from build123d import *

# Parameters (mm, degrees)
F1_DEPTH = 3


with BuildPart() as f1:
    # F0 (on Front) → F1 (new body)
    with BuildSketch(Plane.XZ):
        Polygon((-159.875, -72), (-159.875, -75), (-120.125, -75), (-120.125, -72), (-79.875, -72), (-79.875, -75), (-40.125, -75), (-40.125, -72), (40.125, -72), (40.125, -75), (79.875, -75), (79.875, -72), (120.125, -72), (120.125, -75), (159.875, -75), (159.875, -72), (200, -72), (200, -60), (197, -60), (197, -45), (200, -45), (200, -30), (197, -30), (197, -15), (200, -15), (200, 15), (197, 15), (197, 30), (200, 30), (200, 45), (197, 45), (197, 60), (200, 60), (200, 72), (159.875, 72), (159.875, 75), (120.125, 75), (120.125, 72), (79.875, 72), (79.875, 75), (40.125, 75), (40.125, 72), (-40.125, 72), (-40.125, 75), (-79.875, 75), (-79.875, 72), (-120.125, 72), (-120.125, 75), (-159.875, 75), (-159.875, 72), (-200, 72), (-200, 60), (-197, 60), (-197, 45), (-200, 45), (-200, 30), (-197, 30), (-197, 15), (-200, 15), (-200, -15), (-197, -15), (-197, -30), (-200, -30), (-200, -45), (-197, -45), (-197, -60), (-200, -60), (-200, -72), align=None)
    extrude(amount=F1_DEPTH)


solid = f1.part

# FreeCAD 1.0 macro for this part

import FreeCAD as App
import Part
import Sketcher
from FreeCAD import Vector

doc = App.newDocument("Part")
body = doc.addObject("PartDesign::Body", "Body")

# Sketch on XZ plane
sketch1 = doc.addObject("Sketcher::SketchObject", "Sketch")
body.addObject(sketch1)
sketch1.AttachmentSupport = (doc.XZ_Plane, [""])
sketch1.MapMode = "FlatFace"
sketch1.addGeometry([
    Part.LineSegment(Vector(-159.9, -72, 0), Vector(-159.9, -75, 0)),  # 0
    Part.LineSegment(Vector(-159.9, -75, 0), Vector(-120.1, -75, 0)),  # 1
    Part.LineSegment(Vector(-120.1, -75, 0), Vector(-120.1, -72, 0)),  # 2
    Part.LineSegment(Vector(-120.1, -72, 0), Vector(-79.9, -72, 0)),  # 3
    Part.LineSegment(Vector(-79.9, -72, 0), Vector(-79.9, -75, 0)),  # 4
    Part.LineSegment(Vector(-79.9, -75, 0), Vector(-40.1, -75, 0)),  # 5
    Part.LineSegment(Vector(-40.1, -75, 0), Vector(-40.1, -72, 0)),  # 6
    Part.LineSegment(Vector(-40.1, -72, 0), Vector(40.1, -72, 0)),  # 7
    Part.LineSegment(Vector(40.1, -72, 0), Vector(40.1, -75, 0)),  # 8
    Part.LineSegment(Vector(40.1, -75, 0), Vector(79.9, -75, 0)),  # 9
    Part.LineSegment(Vector(79.9, -75, 0), Vector(79.9, -72, 0)),  # 10
    Part.LineSegment(Vector(79.9, -72, 0), Vector(120.1, -72, 0)),  # 11
    Part.LineSegment(Vector(120.1, -72, 0), Vector(120.1, -75, 0)),  # 12
    Part.LineSegment(Vector(120.1, -75, 0), Vector(159.9, -75, 0)),  # 13
    Part.LineSegment(Vector(159.9, -75, 0), Vector(159.9, -72, 0)),  # 14
    Part.LineSegment(Vector(159.9, -72, 0), Vector(200, -72, 0)),  # 15
    Part.LineSegment(Vector(200, -72, 0), Vector(200, -60, 0)),  # 16
    Part.LineSegment(Vector(200, -60, 0), Vector(197, -60, 0)),  # 17
    Part.LineSegment(Vector(197, -60, 0), Vector(197, -45, 0)),  # 18
    Part.LineSegment(Vector(197, -45, 0), Vector(200, -45, 0)),  # 19
    Part.LineSegment(Vector(200, -45, 0), Vector(200, -30, 0)),  # 20
    Part.LineSegment(Vector(200, -30, 0), Vector(197, -30, 0)),  # 21
    Part.LineSegment(Vector(197, -30, 0), Vector(197, -15, 0)),  # 22
    Part.LineSegment(Vector(197, -15, 0), Vector(200, -15, 0)),  # 23
    Part.LineSegment(Vector(200, -15, 0), Vector(200, 15, 0)),  # 24
    Part.LineSegment(Vector(200, 15, 0), Vector(197, 15, 0)),  # 25
    Part.LineSegment(Vector(197, 15, 0), Vector(197, 30, 0)),  # 26
    Part.LineSegment(Vector(197, 30, 0), Vector(200, 30, 0)),  # 27
    Part.LineSegment(Vector(200, 30, 0), Vector(200, 45, 0)),  # 28
    Part.LineSegment(Vector(200, 45, 0), Vector(197, 45, 0)),  # 29
    Part.LineSegment(Vector(197, 45, 0), Vector(197, 60, 0)),  # 30
    Part.LineSegment(Vector(197, 60, 0), Vector(200, 60, 0)),  # 31
    Part.LineSegment(Vector(200, 60, 0), Vector(200, 72, 0)),  # 32
    Part.LineSegment(Vector(200, 72, 0), Vector(159.9, 72, 0)),  # 33
    Part.LineSegment(Vector(159.9, 72, 0), Vector(159.9, 75, 0)),  # 34
    Part.LineSegment(Vector(159.9, 75, 0), Vector(120.1, 75, 0)),  # 35
    Part.LineSegment(Vector(120.1, 75, 0), Vector(120.1, 72, 0)),  # 36
    Part.LineSegment(Vector(120.1, 72, 0), Vector(79.9, 72, 0)),  # 37
    Part.LineSegment(Vector(79.9, 72, 0), Vector(79.9, 75, 0)),  # 38
    Part.LineSegment(Vector(79.9, 75, 0), Vector(40.1, 75, 0)),  # 39
    Part.LineSegment(Vector(40.1, 75, 0), Vector(40.1, 72, 0)),  # 40
    Part.LineSegment(Vector(40.1, 72, 0), Vector(-40.1, 72, 0)),  # 41
    Part.LineSegment(Vector(-40.1, 72, 0), Vector(-40.1, 75, 0)),  # 42
    Part.LineSegment(Vector(-40.1, 75, 0), Vector(-79.9, 75, 0)),  # 43
    Part.LineSegment(Vector(-79.9, 75, 0), Vector(-79.9, 72, 0)),  # 44
    Part.LineSegment(Vector(-79.9, 72, 0), Vector(-120.1, 72, 0)),  # 45
    Part.LineSegment(Vector(-120.1, 72, 0), Vector(-120.1, 75, 0)),  # 46
    Part.LineSegment(Vector(-120.1, 75, 0), Vector(-159.9, 75, 0)),  # 47
    Part.LineSegment(Vector(-159.9, 75, 0), Vector(-159.9, 72, 0)),  # 48
    Part.LineSegment(Vector(-159.9, 72, 0), Vector(-200, 72, 0)),  # 49
    Part.LineSegment(Vector(-200, 72, 0), Vector(-200, 60, 0)),  # 50
    Part.LineSegment(Vector(-200, 60, 0), Vector(-197, 60, 0)),  # 51
    Part.LineSegment(Vector(-197, 60, 0), Vector(-197, 45, 0)),  # 52
    Part.LineSegment(Vector(-197, 45, 0), Vector(-200, 45, 0)),  # 53
    Part.LineSegment(Vector(-200, 45, 0), Vector(-200, 30, 0)),  # 54
    Part.LineSegment(Vector(-200, 30, 0), Vector(-197, 30, 0)),  # 55
    Part.LineSegment(Vector(-197, 30, 0), Vector(-197, 15, 0)),  # 56
    Part.LineSegment(Vector(-197, 15, 0), Vector(-200, 15, 0)),  # 57
    Part.LineSegment(Vector(-200, 15, 0), Vector(-200, -15, 0)),  # 58
    Part.LineSegment(Vector(-200, -15, 0), Vector(-197, -15, 0)),  # 59
    Part.LineSegment(Vector(-197, -15, 0), Vector(-197, -30, 0)),  # 60
    Part.LineSegment(Vector(-197, -30, 0), Vector(-200, -30, 0)),  # 61
    Part.LineSegment(Vector(-200, -30, 0), Vector(-200, -45, 0)),  # 62
    Part.LineSegment(Vector(-200, -45, 0), Vector(-197, -45, 0)),  # 63
    Part.LineSegment(Vector(-197, -45, 0), Vector(-197, -60, 0)),  # 64
    Part.LineSegment(Vector(-197, -60, 0), Vector(-200, -60, 0)),  # 65
    Part.LineSegment(Vector(-200, -60, 0), Vector(-200, -72, 0)),  # 66
    Part.LineSegment(Vector(-200, -72, 0), Vector(-159.9, -72, 0)),  # 67
], False)
sketch1.addConstraint([
    Sketcher.Constraint("Coincident", 0, 2, 1, 1),
    Sketcher.Constraint("Coincident", 1, 2, 2, 1),
    Sketcher.Constraint("Coincident", 2, 2, 3, 1),
    Sketcher.Constraint("Coincident", 3, 2, 4, 1),
    Sketcher.Constraint("Coincident", 4, 2, 5, 1),
    Sketcher.Constraint("Coincident", 5, 2, 6, 1),
    Sketcher.Constraint("Coincident", 6, 2, 7, 1),
    Sketcher.Constraint("Coincident", 7, 2, 8, 1),
    Sketcher.Constraint("Coincident", 8, 2, 9, 1),
    Sketcher.Constraint("Coincident", 9, 2, 10, 1),
    Sketcher.Constraint("Coincident", 10, 2, 11, 1),
    Sketcher.Constraint("Coincident", 11, 2, 12, 1),
    Sketcher.Constraint("Coincident", 12, 2, 13, 1),
    Sketcher.Constraint("Coincident", 13, 2, 14, 1),
    Sketcher.Constraint("Coincident", 14, 2, 15, 1),
    Sketcher.Constraint("Coincident", 15, 2, 16, 1),
    Sketcher.Constraint("Coincident", 16, 2, 17, 1),
    Sketcher.Constraint("Coincident", 17, 2, 18, 1),
    Sketcher.Constraint("Coincident", 18, 2, 19, 1),
    Sketcher.Constraint("Coincident", 19, 2, 20, 1),
    Sketcher.Constraint("Coincident", 20, 2, 21, 1),
    Sketcher.Constraint("Coincident", 21, 2, 22, 1),
    Sketcher.Constraint("Coincident", 22, 2, 23, 1),
    Sketcher.Constraint("Coincident", 23, 2, 24, 1),
    Sketcher.Constraint("Coincident", 24, 2, 25, 1),
    Sketcher.Constraint("Coincident", 25, 2, 26, 1),
    Sketcher.Constraint("Coincident", 26, 2, 27, 1),
    Sketcher.Constraint("Coincident", 27, 2, 28, 1),
    Sketcher.Constraint("Coincident", 28, 2, 29, 1),
    Sketcher.Constraint("Coincident", 29, 2, 30, 1),
    Sketcher.Constraint("Coincident", 30, 2, 31, 1),
    Sketcher.Constraint("Coincident", 31, 2, 32, 1),
    Sketcher.Constraint("Coincident", 32, 2, 33, 1),
    Sketcher.Constraint("Coincident", 33, 2, 34, 1),
    Sketcher.Constraint("Coincident", 34, 2, 35, 1),
    Sketcher.Constraint("Coincident", 35, 2, 36, 1),
    Sketcher.Constraint("Coincident", 36, 2, 37, 1),
    Sketcher.Constraint("Coincident", 37, 2, 38, 1),
    Sketcher.Constraint("Coincident", 38, 2, 39, 1),
    Sketcher.Constraint("Coincident", 39, 2, 40, 1),
    Sketcher.Constraint("Coincident", 40, 2, 41, 1),
    Sketcher.Constraint("Coincident", 41, 2, 42, 1),
    Sketcher.Constraint("Coincident", 42, 2, 43, 1),
    Sketcher.Constraint("Coincident", 43, 2, 44, 1),
    Sketcher.Constraint("Coincident", 44, 2, 45, 1),
    Sketcher.Constraint("Coincident", 45, 2, 46, 1),
    Sketcher.Constraint("Coincident", 46, 2, 47, 1),
    Sketcher.Constraint("Coincident", 47, 2, 48, 1),
    Sketcher.Constraint("Coincident", 48, 2, 49, 1),
    Sketcher.Constraint("Coincident", 49, 2, 50, 1),
    Sketcher.Constraint("Coincident", 50, 2, 51, 1),
    Sketcher.Constraint("Coincident", 51, 2, 52, 1),
    Sketcher.Constraint("Coincident", 52, 2, 53, 1),
    Sketcher.Constraint("Coincident", 53, 2, 54, 1),
    Sketcher.Constraint("Coincident", 54, 2, 55, 1),
    Sketcher.Constraint("Coincident", 55, 2, 56, 1),
    Sketcher.Constraint("Coincident", 56, 2, 57, 1),
    Sketcher.Constraint("Coincident", 57, 2, 58, 1),
    Sketcher.Constraint("Coincident", 58, 2, 59, 1),
    Sketcher.Constraint("Coincident", 59, 2, 60, 1),
    Sketcher.Constraint("Coincident", 60, 2, 61, 1),
    Sketcher.Constraint("Coincident", 61, 2, 62, 1),
    Sketcher.Constraint("Coincident", 62, 2, 63, 1),
    Sketcher.Constraint("Coincident", 63, 2, 64, 1),
    Sketcher.Constraint("Coincident", 64, 2, 65, 1),
    Sketcher.Constraint("Coincident", 65, 2, 66, 1),
    Sketcher.Constraint("Coincident", 66, 2, 67, 1),
    Sketcher.Constraint("Coincident", 67, 2, 0, 1),
    Sketcher.Constraint("Vertical", 0),
    Sketcher.Constraint("Horizontal", 1),
    Sketcher.Constraint("Vertical", 2),
    Sketcher.Constraint("Horizontal", 3),
    Sketcher.Constraint("Vertical", 4),
    Sketcher.Constraint("Horizontal", 5),
    Sketcher.Constraint("Vertical", 6),
    Sketcher.Constraint("Horizontal", 7),
    Sketcher.Constraint("Vertical", 8),
    Sketcher.Constraint("Horizontal", 9),
    Sketcher.Constraint("Vertical", 10),
    Sketcher.Constraint("Horizontal", 11),
    Sketcher.Constraint("Vertical", 12),
    Sketcher.Constraint("Horizontal", 13),
    Sketcher.Constraint("Vertical", 14),
    Sketcher.Constraint("Horizontal", 15),
    Sketcher.Constraint("Vertical", 16),
    Sketcher.Constraint("Horizontal", 17),
    Sketcher.Constraint("Vertical", 18),
    Sketcher.Constraint("Horizontal", 19),
    Sketcher.Constraint("Vertical", 20),
    Sketcher.Constraint("Horizontal", 21),
    Sketcher.Constraint("Vertical", 22),
    Sketcher.Constraint("Horizontal", 23),
    Sketcher.Constraint("Vertical", 24),
    Sketcher.Constraint("Horizontal", 25),
    Sketcher.Constraint("Vertical", 26),
    Sketcher.Constraint("Horizontal", 27),
    Sketcher.Constraint("Vertical", 28),
    Sketcher.Constraint("Horizontal", 29),
    Sketcher.Constraint("Vertical", 30),
    Sketcher.Constraint("Horizontal", 31),
    Sketcher.Constraint("Vertical", 32),
    Sketcher.Constraint("Horizontal", 33),
    Sketcher.Constraint("Vertical", 34),
    Sketcher.Constraint("Horizontal", 35),
    Sketcher.Constraint("Vertical", 36),
    Sketcher.Constraint("Horizontal", 37),
    Sketcher.Constraint("Vertical", 38),
    Sketcher.Constraint("Horizontal", 39),
    Sketcher.Constraint("Vertical", 40),
    Sketcher.Constraint("Horizontal", 41),
    Sketcher.Constraint("Vertical", 42),
    Sketcher.Constraint("Horizontal", 43),
    Sketcher.Constraint("Vertical", 44),
    Sketcher.Constraint("Horizontal", 45),
    Sketcher.Constraint("Vertical", 46),
    Sketcher.Constraint("Horizontal", 47),
    Sketcher.Constraint("Vertical", 48),
    Sketcher.Constraint("Horizontal", 49),
    Sketcher.Constraint("Vertical", 50),
    Sketcher.Constraint("Horizontal", 51),
    Sketcher.Constraint("Vertical", 52),
    Sketcher.Constraint("Horizontal", 53),
    Sketcher.Constraint("Vertical", 54),
    Sketcher.Constraint("Horizontal", 55),
    Sketcher.Constraint("Vertical", 56),
    Sketcher.Constraint("Horizontal", 57),
    Sketcher.Constraint("Vertical", 58),
    Sketcher.Constraint("Horizontal", 59),
    Sketcher.Constraint("Vertical", 60),
    Sketcher.Constraint("Horizontal", 61),
    Sketcher.Constraint("Vertical", 62),
    Sketcher.Constraint("Horizontal", 63),
    Sketcher.Constraint("Vertical", 64),
    Sketcher.Constraint("Horizontal", 65),
    Sketcher.Constraint("Vertical", 66),
    Sketcher.Constraint("Horizontal", 67),
    Sketcher.Constraint("Symmetric", 0, 2, 34, 2, -1, 1),
    Sketcher.Constraint("Symmetric", 2, 2, 36, 2, -1, 1),
    Sketcher.Constraint("Symmetric", 4, 2, 38, 2, -1, 1),
    Sketcher.Constraint("Symmetric", 6, 2, 40, 2, -1, 1),
    Sketcher.Constraint("Symmetric", 8, 2, 42, 2, -1, 1),
    Sketcher.Constraint("Symmetric", 10, 2, 44, 2, -1, 1),
    Sketcher.Constraint("Symmetric", 12, 2, 46, 2, -1, 1),
    Sketcher.Constraint("Symmetric", 14, 2, 48, 2, -1, 1),
    Sketcher.Constraint("Symmetric", 16, 2, 50, 2, -1, 1),
    Sketcher.Constraint("Symmetric", 18, 2, 52, 2, -1, 1),
    Sketcher.Constraint("Symmetric", 20, 2, 54, 2, -1, 1),
    Sketcher.Constraint("Symmetric", 22, 2, 56, 2, -1, 1),
    Sketcher.Constraint("Symmetric", 24, 2, 58, 2, -1, 1),
    Sketcher.Constraint("Symmetric", 26, 2, 60, 2, -1, 1),
    Sketcher.Constraint("Symmetric", 28, 2, 62, 2, -1, 1),
    Sketcher.Constraint("Symmetric", 30, 2, 64, 2, -1, 1),
    Sketcher.Constraint("Symmetric", 32, 2, 66, 2, -1, 1),
    Sketcher.Constraint("Symmetric", 5, 2, 8, 2, -2),
    Sketcher.Constraint("Symmetric", 3, 2, 10, 2, -2),
    Sketcher.Constraint("Symmetric", 1, 2, 12, 2, -2),
    Sketcher.Constraint("Symmetric", 33, 2, 48, 2, -2),
    Sketcher.Constraint("Symmetric", 31, 2, 50, 2, -2),
    Sketcher.Constraint("Symmetric", 29, 2, 52, 2, -2),
    Sketcher.Constraint("Symmetric", 27, 2, 54, 2, -2),
    Sketcher.Constraint("Symmetric", 25, 2, 56, 2, -2),
    Sketcher.Constraint("Horizontal", 1, 2, 4, 2),
    Sketcher.Constraint("Horizontal", 3, 2, 6, 2),
    Sketcher.Constraint("Horizontal", 11, 2, 14, 2),
    Sketcher.Constraint("Vertical", 16, 2, 19, 2),
    Sketcher.Constraint("Vertical", 18, 2, 21, 2),
    Sketcher.Constraint("Vertical", 20, 2, 23, 2),
    Sketcher.Constraint("Equal", 1, 5),
    Sketcher.Constraint("Equal", 65, 0),
    Sketcher.Constraint("Equal", 18, 20),
    Sketcher.Constraint("Equal", 20, 22),
    Sketcher.Constraint("DistanceX", 17, 2, 17, 1, 3.0),
    Sketcher.Constraint("DistanceY", 16, 1, 16, 2, 12.0),
    Sketcher.Constraint("DistanceY", 18, 1, 18, 2, 15.0),
    Sketcher.Constraint("DistanceY", 24, 1, 24, 2, 30.0),
    Sketcher.Constraint("DistanceX", -1, 1, 15, 2, 200.0),
    Sketcher.Constraint("DistanceX", 1, 1, 1, 2, 39.75),
    Sketcher.Constraint("DistanceX", 3, 1, 3, 2, 40.25),
    Sketcher.Constraint("DistanceX", 7, 1, 7, 2, 80.25),
])
pad1 = doc.addObject("PartDesign::Pad", "Pad")
body.addObject(pad1)
pad1.Profile = sketch1
pad1.Length = 3

doc.recompute()
